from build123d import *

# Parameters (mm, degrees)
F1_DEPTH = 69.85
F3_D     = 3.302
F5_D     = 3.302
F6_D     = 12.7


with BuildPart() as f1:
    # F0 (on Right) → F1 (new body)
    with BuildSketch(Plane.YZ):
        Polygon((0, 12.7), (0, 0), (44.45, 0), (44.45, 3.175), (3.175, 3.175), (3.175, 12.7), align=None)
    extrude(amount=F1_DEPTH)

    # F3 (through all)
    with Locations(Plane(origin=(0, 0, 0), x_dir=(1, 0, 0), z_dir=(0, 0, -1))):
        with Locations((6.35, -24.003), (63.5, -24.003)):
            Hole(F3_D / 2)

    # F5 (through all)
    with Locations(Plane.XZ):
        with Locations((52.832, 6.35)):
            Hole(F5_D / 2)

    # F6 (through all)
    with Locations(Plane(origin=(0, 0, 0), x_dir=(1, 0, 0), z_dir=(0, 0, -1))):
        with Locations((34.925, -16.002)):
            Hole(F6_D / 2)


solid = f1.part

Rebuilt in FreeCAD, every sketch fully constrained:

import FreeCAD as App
import Part
import Sketcher
from FreeCAD import Vector
Q = App.Units.Quantity

doc = App.newDocument("Part")
params = doc.addObject("Spreadsheet::Sheet", "Params")
for row, (alias, value) in enumerate([
    ("sketch1_height", "0.5 in"),
    ("sketch1_width", "1.75 in"),
    ("sketch1_width2", "1.625 in"),
    ("pad1_length", "2.75 in"),
    ("sketch2_diameter", "0.13 in"),
    ("hole_diameter", "0.13 in"),
    ("sketch3_diameter", "0.13 in"),
    ("hole2_diameter", "0.13 in"),
    ("sketch4_diameter", "0.5 in"),
    ("hole3_diameter", "0.5 in"),
], start=1):
    params.set(f"A{row}", alias)
    params.set(f"B{row}", "=" + value)
    params.setAlias(f"B{row}", alias)

body = doc.addObject("PartDesign::Body", "Body")

# Sketch on YZ plane
sketch1 = body.newObject("Sketcher::SketchObject", "Sketch")
sketch1.AttachmentSupport = (doc.getObject("YZ_Plane"), [""])
sketch1.MapMode = "FlatFace"
sketch1.addGeometry([
    Part.LineSegment(Vector(0, 12.7, 0), Vector(0, 0, 0)),  # 0
    Part.LineSegment(Vector(0, 0, 0), Vector(44.5, 0, 0)),  # 1
    Part.LineSegment(Vector(44.5, 0, 0), Vector(44.5, 3.2, 0)),  # 2
    Part.LineSegment(Vector(44.5, 3.2, 0), Vector(3.2, 3.2, 0)),  # 3
    Part.LineSegment(Vector(3.2, 3.2, 0), Vector(3.2, 12.7, 0)),  # 4
    Part.LineSegment(Vector(3.2, 12.7, 0), Vector(0, 12.7, 0)),  # 5
], False)
sketch1.addConstraint([
    Sketcher.Constraint("Coincident", 0, 2, 1, 1),
    Sketcher.Constraint("Coincident", 1, 2, 2, 1),
    Sketcher.Constraint("Coincident", 2, 2, 3, 1),
    Sketcher.Constraint("Coincident", 3, 2, 4, 1),
    Sketcher.Constraint("Coincident", 4, 2, 5, 1),
    Sketcher.Constraint("Coincident", 5, 2, 0, 1),
    Sketcher.Constraint("Vertical", 0),
    Sketcher.Constraint("Horizontal", 1),
    Sketcher.Constraint("Vertical", 2),
    Sketcher.Constraint("Horizontal", 3),
    Sketcher.Constraint("Vertical", 4),
    Sketcher.Constraint("Horizontal", 5),
    Sketcher.Constraint("Coincident", 0, 2, -1, 1),
    Sketcher.Constraint("Equal", 5, 2),
    Sketcher.Constraint("DistanceY", 0, 2, 0, 1, Q("0.5 in")),
    Sketcher.Constraint("DistanceX", 1, 1, 1, 2, Q("1.75 in")),
    Sketcher.Constraint("DistanceX", 3, 2, 3, 1, Q("1.625 in")),
])
sketch1.setExpression("Constraints[14]", "Params.sketch1_height")
sketch1.setExpression("Constraints[15]", "Params.sketch1_width")
sketch1.setExpression("Constraints[16]", "Params.sketch1_width2")
pad1 = body.newObject("PartDesign::Pad", "Pad")
pad1.Profile = sketch1
pad1.setExpression("Length", "Params.pad1_length")

# Sketch on XY plane
sketch2 = body.newObject("Sketcher::SketchObject", "Sketch001")
sketch2.AttachmentSupport = (doc.getObject("XY_Plane"), [""])
sketch2.MapMode = "FlatFace"
sketch2.addGeometry([
    Part.Circle(Vector(6.3, 24, 0), Vector(0, 0, 1), 1.7),
    Part.Circle(Vector(63.5, 24, 0), Vector(0, 0, 1), 1.7),
], False)
sketch2.addConstraint([
    Sketcher.Constraint("Equal", 0, 1),
    Sketcher.Constraint("Horizontal", 0, 3, 1, 3),
    Sketcher.Constraint("Diameter", 0, Q("0.13 in")),
    Sketcher.Constraint("DistanceX", -1, 1, 1, 3, Q("2.5 in")),
    Sketcher.Constraint("DistanceX", -1, 1, 0, 3, Q("0.25 in")),
    Sketcher.Constraint("DistanceY", -1, 1, 0, 3, Q("0.945 in")),
])
sketch2.setExpression("Constraints[2]", "Params.sketch2_diameter")
doc.recompute()
hole = body.newObject("PartDesign::Hole", "Hole")
hole.Profile = sketch2
hole.ThreadType = "None"
hole.setExpression("Diameter", "Params.hole_diameter")
hole.DepthType = "ThroughAll"
hole.Reversed = True

# Sketch on XZ plane
sketch3 = body.newObject("Sketcher::SketchObject", "Sketch002")
sketch3.AttachmentSupport = (doc.getObject("XZ_Plane"), [""])
sketch3.MapMode = "FlatFace"
sketch3.addGeometry(Part.Circle(Vector(52.8, 6.3, 0), Vector(0, 0, 1), 1.7), False)
sketch3.addConstraint([
    Sketcher.Constraint("Diameter", 0, Q("0.13 in")),
    Sketcher.Constraint("DistanceX", -1, 1, 0, 3, Q("2.08 in")),
    Sketcher.Constraint("DistanceY", -1, 1, 0, 3, Q("0.25 in")),
])
sketch3.setExpression("Constraints[0]", "Params.sketch3_diameter")
doc.recompute()
hole2 = body.newObject("PartDesign::Hole", "Hole001")
hole2.Profile = sketch3
hole2.ThreadType = "None"
hole2.setExpression("Diameter", "Params.hole2_diameter")
hole2.DepthType = "ThroughAll"

# Sketch on XY plane
sketch4 = body.newObject("Sketcher::SketchObject", "Sketch003")
sketch4.AttachmentSupport = (doc.getObject("XY_Plane"), [""])
sketch4.MapMode = "FlatFace"
sketch4.addGeometry(Part.Circle(Vector(35, 16, 0), Vector(0, 0, 1), 6), False)
sketch4.addConstraint([
    Sketcher.Constraint("Diameter", 0, Q("0.5 in")),
    Sketcher.Constraint("DistanceY", -1, 1, 0, 3, Q("0.63 in")),
    Sketcher.Constraint("DistanceX", -1, 1, 0, 3, Q("1.375 in")),
])
sketch4.setExpression("Constraints[0]", "Params.sketch4_diameter")
doc.recompute()
hole3 = body.newObject("PartDesign::Hole", "Hole002")
hole3.Profile = sketch4
hole3.ThreadType = "None"
hole3.setExpression("Diameter", "Params.hole3_diameter")
hole3.DepthType = "ThroughAll"
hole3.Reversed = True

doc.recompute()
